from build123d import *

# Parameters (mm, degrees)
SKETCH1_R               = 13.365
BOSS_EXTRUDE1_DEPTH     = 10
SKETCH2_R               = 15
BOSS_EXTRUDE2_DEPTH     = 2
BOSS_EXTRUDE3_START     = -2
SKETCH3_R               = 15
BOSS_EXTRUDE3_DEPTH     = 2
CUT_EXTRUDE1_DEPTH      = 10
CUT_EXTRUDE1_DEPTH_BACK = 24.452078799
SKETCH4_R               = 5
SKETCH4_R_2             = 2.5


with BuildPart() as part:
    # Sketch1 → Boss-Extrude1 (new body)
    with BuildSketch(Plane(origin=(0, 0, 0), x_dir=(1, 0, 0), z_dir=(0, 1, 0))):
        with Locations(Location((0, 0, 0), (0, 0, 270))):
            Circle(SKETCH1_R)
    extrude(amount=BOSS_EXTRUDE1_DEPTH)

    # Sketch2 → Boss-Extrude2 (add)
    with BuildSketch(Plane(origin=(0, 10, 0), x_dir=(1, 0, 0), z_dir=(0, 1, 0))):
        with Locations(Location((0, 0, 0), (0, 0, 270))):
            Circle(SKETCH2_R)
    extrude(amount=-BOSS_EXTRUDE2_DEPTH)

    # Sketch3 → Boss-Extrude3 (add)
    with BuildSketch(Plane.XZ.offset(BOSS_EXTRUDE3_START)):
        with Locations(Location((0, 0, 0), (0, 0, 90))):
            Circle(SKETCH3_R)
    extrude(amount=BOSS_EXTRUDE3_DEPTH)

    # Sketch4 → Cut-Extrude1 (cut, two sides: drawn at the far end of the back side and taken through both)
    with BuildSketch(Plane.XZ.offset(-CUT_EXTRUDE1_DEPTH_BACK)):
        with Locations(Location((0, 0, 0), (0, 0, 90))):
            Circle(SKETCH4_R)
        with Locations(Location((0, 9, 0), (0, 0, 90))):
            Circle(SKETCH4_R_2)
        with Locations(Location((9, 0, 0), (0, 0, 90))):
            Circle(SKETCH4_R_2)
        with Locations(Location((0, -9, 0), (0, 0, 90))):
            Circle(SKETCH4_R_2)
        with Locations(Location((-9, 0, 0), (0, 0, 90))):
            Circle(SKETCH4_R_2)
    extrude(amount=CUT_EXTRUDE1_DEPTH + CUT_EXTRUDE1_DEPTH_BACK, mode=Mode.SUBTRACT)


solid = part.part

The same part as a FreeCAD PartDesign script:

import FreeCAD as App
import Part
import Sketcher

V = App.Vector

doc = App.newDocument("Part")
body = doc.addObject("PartDesign::Body", "Body")

# Sketch on XZ plane
sketch1 = body.newObject("Sketcher::SketchObject", "Sketch")
sketch1.AttachmentSupport = (doc.getObject("XZ_Plane"), [""])
sketch1.MapMode = "FlatFace"
sketch1.addGeometry(Part.Circle(V(0, 0, 0), V(0, 0, 1), 13), False)
sketch1.addConstraint([
    Sketcher.Constraint("Coincident", 0, 3, -1, 1),
    Sketcher.Constraint("Diameter", 0, 26.73),
])
pad1 = body.newObject("PartDesign::Pad", "Pad")
pad1.Profile = sketch1
pad1.Length = 10
pad1.Reversed = True

# Sketch on XZ plane
sketch2 = body.newObject("Sketcher::SketchObject", "Sketch001")
sketch2.AttachmentSupport = (doc.getObject("XZ_Plane"), [""])
sketch2.MapMode = "FlatFace"
sketch2.AttachmentOffset = App.Placement(V(0, 0, -10), App.Rotation())
sketch2.addGeometry(Part.Circle(V(0, 0, 0), V(0, 0, 1), 15), False)
sketch2.addConstraint([
    Sketcher.Constraint("Coincident", 0, 3, -1, 1),
    Sketcher.Constraint("Diameter", 0, 30.0),
])
pad2 = body.newObject("PartDesign::Pad", "Pad001")
pad2.Profile = sketch2
pad2.Length = 2

# Sketch on XZ plane
sketch3 = body.newObject("Sketcher::SketchObject", "Sketch002")
sketch3.AttachmentSupport = (doc.getObject("XZ_Plane"), [""])
sketch3.MapMode = "FlatFace"
sketch3.AttachmentOffset = App.Placement(V(0, 0, -2), App.Rotation())
sketch3.addGeometry(Part.Circle(V(0, 0, 0), V(0, 0, 1), 15), False)
sketch3.addConstraint([
    Sketcher.Constraint("Coincident", 0, 3, -1, 1),
    Sketcher.Constraint("Diameter", 0, 30.0),
])
pad3 = body.newObject("PartDesign::Pad", "Pad002")
pad3.Profile = sketch3
pad3.Length = 2

# Sketch on XZ plane
sketch4 = body.newObject("Sketcher::SketchObject", "Sketch003")
sketch4.AttachmentSupport = (doc.getObject("XZ_Plane"), [""])
sketch4.MapMode = "FlatFace"
sketch4.addGeometry([
    Part.Circle(V(0, 0, 0), V(0, 0, 1), 5),  # 0
    Part.Circle(V(0, 9, 0), V(0, 0, 1), 2.5),  # 1
    Part.Circle(V(9, 0, 0), V(0, 0, 1), 2.5),  # 2
    Part.Circle(V(0, -9, 0), V(0, 0, 1), 2.5),  # 3
    Part.Circle(V(-9, 0, 0), V(0, 0, 1), 2.5),  # 4
], False)
sketch4.addConstraint([
    Sketcher.Constraint("Coincident", 0, 3, -1, 1),
    Sketcher.Constraint("Equal", 1, 2),
    Sketcher.Constraint("Equal", 2, 3),
    Sketcher.Constraint("Equal", 3, 4),
    Sketcher.Constraint("Symmetric", 1, 3, 3, 3, -1, 1),
    Sketcher.Constraint("Symmetric", 2, 3, 4, 3, -1, 1),
    Sketcher.Constraint("PointOnObject", 1, 3, -2),
    Sketcher.Constraint("PointOnObject", 2, 3, -1),
    Sketcher.Constraint("Diameter", 0, 10.0),
    Sketcher.Constraint("Diameter", 1, 5.0),
    Sketcher.Constraint("DistanceY", -1, 1, 1, 3, 9.0),
    Sketcher.Constraint("DistanceX", -1, 1, 2, 3, 9.0),
])
pocket1 = body.newObject("PartDesign::Pocket", "Pocket")
pocket1.Profile = sketch4
pocket1.Type = "ThroughAll"
pocket1.Midplane = True

doc.recompute()
